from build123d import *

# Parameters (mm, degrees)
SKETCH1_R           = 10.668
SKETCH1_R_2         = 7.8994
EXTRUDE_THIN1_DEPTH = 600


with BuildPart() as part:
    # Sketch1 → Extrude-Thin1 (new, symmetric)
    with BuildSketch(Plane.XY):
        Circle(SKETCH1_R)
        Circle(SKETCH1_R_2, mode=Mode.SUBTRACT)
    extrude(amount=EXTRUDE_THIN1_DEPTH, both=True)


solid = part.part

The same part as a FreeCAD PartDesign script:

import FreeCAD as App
import Part
import Sketcher
Q = App.Units.Quantity

doc = App.newDocument("Part")
body = doc.addObject("PartDesign::Body", "Body")

# Sketch on XY plane
sketch1 = doc.addObject("Sketcher::SketchObject", "Sketch")
body.addObject(sketch1)
sketch1.AttachmentSupport = (doc.XY_Plane, [""])
sketch1.MapMode = "FlatFace"
sketch1.addGeometry(Part.Circle(App.Vector(0, 0, 0), App.Vector(0, 0, 1), 11), False)
sketch1.addGeometry(Part.Circle(App.Vector(0, 0, 0), App.Vector(0, 0, 1), 8), False)
sketch1.addConstraint(Sketcher.Constraint("Coincident", 0, 3, -1, 1))
sketch1.addConstraint(Sketcher.Constraint("Coincident", 1, 3, -1, 1))
sketch1.addConstraint(Sketcher.Constraint("Diameter", 0, Q("0.84 in")))
sketch1.addConstraint(Sketcher.Constraint("Diameter", 1, Q("0.622 in")))
pad1 = doc.addObject("PartDesign::Pad", "Pad")
body.addObject(pad1)
pad1.Profile = sketch1
pad1.Length = 1200
pad1.Midplane = True

doc.recompute()
